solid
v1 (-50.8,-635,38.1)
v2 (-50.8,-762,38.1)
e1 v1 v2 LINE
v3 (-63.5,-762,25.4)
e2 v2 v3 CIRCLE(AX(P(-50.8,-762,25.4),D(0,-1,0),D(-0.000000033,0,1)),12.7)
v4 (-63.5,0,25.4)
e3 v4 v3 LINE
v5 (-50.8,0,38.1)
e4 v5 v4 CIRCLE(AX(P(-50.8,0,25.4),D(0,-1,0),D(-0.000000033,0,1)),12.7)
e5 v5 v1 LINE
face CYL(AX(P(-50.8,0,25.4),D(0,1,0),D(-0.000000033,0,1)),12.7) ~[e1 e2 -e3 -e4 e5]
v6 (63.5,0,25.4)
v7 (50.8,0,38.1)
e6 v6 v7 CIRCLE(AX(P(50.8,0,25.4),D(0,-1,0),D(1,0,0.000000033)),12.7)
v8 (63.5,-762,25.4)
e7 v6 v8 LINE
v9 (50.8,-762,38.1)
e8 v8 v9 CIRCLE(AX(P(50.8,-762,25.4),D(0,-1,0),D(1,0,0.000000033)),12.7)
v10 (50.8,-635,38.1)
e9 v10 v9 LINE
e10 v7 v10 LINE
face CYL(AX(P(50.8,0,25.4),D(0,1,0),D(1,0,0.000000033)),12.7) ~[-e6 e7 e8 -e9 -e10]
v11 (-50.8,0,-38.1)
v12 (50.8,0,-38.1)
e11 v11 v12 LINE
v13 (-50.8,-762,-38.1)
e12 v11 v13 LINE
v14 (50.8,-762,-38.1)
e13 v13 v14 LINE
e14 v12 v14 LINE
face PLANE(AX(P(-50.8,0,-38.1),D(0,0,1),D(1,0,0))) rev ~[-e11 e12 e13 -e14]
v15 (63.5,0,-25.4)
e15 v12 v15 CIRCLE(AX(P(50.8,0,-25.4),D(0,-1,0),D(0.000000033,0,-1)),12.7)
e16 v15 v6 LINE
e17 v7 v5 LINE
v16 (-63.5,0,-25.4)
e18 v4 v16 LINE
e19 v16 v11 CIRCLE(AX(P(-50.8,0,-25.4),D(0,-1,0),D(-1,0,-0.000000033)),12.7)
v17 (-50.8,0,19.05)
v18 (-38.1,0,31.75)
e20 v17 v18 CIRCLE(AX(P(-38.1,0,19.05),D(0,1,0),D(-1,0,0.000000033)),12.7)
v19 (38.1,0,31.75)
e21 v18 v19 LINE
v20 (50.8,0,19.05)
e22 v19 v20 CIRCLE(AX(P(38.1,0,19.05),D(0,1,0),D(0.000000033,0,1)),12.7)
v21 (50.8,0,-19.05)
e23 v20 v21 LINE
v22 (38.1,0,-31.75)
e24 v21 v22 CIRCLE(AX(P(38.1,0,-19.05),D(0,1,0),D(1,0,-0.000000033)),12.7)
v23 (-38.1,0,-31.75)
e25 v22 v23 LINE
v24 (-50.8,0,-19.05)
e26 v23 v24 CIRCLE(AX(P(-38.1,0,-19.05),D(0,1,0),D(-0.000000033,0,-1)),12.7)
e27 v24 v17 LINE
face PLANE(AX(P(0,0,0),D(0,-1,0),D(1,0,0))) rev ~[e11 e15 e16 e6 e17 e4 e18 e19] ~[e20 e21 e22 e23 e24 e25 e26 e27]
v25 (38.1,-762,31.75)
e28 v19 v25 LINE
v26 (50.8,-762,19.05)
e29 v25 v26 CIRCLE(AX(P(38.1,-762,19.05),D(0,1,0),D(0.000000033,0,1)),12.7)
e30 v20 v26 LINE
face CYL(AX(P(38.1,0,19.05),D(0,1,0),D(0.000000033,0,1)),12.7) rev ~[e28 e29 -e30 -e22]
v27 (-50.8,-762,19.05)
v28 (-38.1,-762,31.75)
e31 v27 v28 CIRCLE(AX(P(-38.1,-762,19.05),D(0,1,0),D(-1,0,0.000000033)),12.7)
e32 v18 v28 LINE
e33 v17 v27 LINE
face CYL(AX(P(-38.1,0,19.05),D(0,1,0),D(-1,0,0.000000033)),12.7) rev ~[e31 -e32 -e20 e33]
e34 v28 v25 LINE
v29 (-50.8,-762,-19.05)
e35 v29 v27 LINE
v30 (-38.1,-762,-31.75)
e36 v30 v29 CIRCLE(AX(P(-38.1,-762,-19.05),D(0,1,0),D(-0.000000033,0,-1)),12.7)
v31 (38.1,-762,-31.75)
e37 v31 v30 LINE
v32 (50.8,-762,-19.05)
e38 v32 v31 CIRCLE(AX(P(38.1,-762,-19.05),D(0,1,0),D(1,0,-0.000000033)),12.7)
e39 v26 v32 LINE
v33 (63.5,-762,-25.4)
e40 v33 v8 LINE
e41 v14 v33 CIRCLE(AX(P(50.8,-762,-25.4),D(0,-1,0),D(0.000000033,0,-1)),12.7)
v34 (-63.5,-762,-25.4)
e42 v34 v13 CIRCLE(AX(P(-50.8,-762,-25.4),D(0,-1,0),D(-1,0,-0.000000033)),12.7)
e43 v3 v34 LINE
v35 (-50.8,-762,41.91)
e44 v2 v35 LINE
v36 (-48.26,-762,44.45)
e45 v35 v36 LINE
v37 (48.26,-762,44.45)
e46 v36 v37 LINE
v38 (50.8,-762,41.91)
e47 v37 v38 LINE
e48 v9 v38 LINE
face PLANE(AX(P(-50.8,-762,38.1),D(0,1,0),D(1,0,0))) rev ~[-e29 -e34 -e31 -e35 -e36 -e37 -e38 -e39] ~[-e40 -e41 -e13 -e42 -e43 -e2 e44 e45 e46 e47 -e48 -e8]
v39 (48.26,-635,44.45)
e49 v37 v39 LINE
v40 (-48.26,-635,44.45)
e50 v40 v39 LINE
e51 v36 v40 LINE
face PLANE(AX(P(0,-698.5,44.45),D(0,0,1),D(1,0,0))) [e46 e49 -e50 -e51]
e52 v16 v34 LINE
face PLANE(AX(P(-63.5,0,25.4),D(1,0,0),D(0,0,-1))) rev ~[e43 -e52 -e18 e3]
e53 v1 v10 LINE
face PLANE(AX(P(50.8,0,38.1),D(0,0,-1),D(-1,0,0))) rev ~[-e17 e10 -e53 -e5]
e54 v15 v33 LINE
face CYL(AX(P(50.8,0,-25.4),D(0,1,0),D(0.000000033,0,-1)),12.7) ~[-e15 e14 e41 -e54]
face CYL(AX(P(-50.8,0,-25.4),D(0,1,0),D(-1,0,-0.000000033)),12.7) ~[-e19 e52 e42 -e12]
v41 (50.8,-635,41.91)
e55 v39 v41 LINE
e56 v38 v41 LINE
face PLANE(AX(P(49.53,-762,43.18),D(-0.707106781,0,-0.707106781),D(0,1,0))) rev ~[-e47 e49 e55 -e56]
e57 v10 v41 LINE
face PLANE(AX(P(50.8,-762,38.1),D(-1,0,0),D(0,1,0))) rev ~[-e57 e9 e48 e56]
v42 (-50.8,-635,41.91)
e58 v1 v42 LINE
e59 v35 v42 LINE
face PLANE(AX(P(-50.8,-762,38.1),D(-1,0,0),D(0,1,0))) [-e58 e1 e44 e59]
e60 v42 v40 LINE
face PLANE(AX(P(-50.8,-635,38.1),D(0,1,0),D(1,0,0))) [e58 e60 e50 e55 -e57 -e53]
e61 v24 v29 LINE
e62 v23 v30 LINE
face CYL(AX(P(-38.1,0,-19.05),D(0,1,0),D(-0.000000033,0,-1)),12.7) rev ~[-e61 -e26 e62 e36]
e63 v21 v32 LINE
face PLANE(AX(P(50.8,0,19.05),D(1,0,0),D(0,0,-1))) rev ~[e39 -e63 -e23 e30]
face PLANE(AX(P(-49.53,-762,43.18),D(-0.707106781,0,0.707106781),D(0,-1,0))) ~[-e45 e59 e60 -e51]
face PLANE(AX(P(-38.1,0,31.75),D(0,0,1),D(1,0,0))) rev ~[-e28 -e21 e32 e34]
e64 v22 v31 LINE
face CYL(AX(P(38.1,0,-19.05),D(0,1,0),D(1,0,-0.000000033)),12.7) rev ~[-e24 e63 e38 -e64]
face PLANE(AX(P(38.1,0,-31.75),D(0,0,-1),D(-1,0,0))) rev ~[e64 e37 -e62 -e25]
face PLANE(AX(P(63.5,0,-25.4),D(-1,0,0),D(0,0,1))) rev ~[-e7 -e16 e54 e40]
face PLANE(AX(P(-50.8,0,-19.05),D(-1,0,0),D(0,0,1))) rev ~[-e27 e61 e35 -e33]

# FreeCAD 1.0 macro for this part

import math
import FreeCAD as App
import Part
import Sketcher

V = App.Vector
Q = App.Units.Quantity


def edges_at(feature, points):
    """Names of the edges that pass closest to the given points."""
    edges = feature.Shape.Edges
    near = lambda p: min(range(len(edges)), key=lambda i: edges[i].distToShape(Part.Vertex(*p))[0])
    return sorted({f"Edge{near(p) + 1}" for p in points})

doc = App.newDocument("Part")
params = doc.addObject("Spreadsheet::Sheet", "Params")
for row, (alias, value) in enumerate([
    ("sketch1_radius", "0.5 in"),
    ("sketch1_width", "4 in"),
    ("sketch1_height", "2 in"),
    ("sketch1_height2", "1.5 in"),
    ("pad1_length", "30 in"),
    ("sketch2_width", "4 in"),
    ("sketch2_height", "5 in"),
    ("pad2_length", "0.25 in"),
    ("chamfer_size", "0.1 in"),
], start=1):
    params.set(f"A{row}", alias)
    params.set(f"B{row}", "=" + value)
    params.setAlias(f"B{row}", alias)

body = doc.addObject("PartDesign::Body", "Body")

# Sketch on XZ plane
sketch1 = doc.addObject("Sketcher::SketchObject", "Sketch")
body.addObject(sketch1)
sketch1.AttachmentSupport = (doc.XZ_Plane, [""])
sketch1.MapMode = "FlatFace"
sketch1.addGeometry([
    Part.ArcOfCircle(Part.Circle(V(50.8, 25.4, 0), V(0, 0, 1), 12.7), math.radians(0.000002), math.radians(89.999998)),  # 0
    Part.LineSegment(V(50.8, 38.1, 0), V(-50.8, 38.1, 0)),  # 1
    Part.ArcOfCircle(Part.Circle(V(-50.8, 25.4, 0), V(0, 0, 1), 12.7), math.radians(90.000002), math.radians(179.999998)),  # 2
    Part.LineSegment(V(-63.5, 25.4, 0), V(-63.5, -25.4, 0)),  # 3
    Part.ArcOfCircle(Part.Circle(V(-50.8, -25.4, 0), V(0, 0, 1), 12.7), math.radians(-179.999998), math.radians(-90.000002)),  # 4
    Part.LineSegment(V(-50.8, -38.1, 0), V(50.8, -38.1, 0)),  # 5
    Part.ArcOfCircle(Part.Circle(V(50.8, -25.4, 0), V(0, 0, 1), 12.7), math.radians(-89.999998), math.radians(-0.000002)),  # 6
    Part.LineSegment(V(63.5, -25.4, 0), V(63.5, 25.4, 0)),  # 7
    Part.ArcOfCircle(Part.Circle(V(-38.1, 19.05, 0), V(0, 0, 1), 12.7), math.radians(90.000002), math.radians(179.999998)),  # 8
    Part.LineSegment(V(-38.1, 31.75, 0), V(38.1, 31.75, 0)),  # 9
    Part.ArcOfCircle(Part.Circle(V(38.1, 19.05, 0), V(0, 0, 1), 12.7), math.radians(0.000002), math.radians(89.999998)),  # 10
    Part.LineSegment(V(50.8, 19.05, 0), V(50.8, -19.05, 0)),  # 11
    Part.ArcOfCircle(Part.Circle(V(38.1, -19.05, 0), V(0, 0, 1), 12.7), math.radians(-89.999998), math.radians(-0.000002)),  # 12
    Part.LineSegment(V(38.1, -31.75, 0), V(-38.1, -31.75, 0)),  # 13
    Part.ArcOfCircle(Part.Circle(V(-38.1, -19.05, 0), V(0, 0, 1), 12.7), math.radians(-179.999998), math.radians(-90.000002)),  # 14
    Part.LineSegment(V(-50.8, -19.05, 0), V(-50.8, 19.05, 0)),  # 15
], False)
sketch1.addConstraint([
    Sketcher.Constraint("Tangent", 0, 2, 1, 1),
    Sketcher.Constraint("Tangent", 1, 2, 2, 1),
    Sketcher.Constraint("Tangent", 2, 2, 3, 1),
    Sketcher.Constraint("Tangent", 3, 2, 4, 1),
    Sketcher.Constraint("Tangent", 4, 2, 5, 1),
    Sketcher.Constraint("Tangent", 5, 2, 6, 1),
    Sketcher.Constraint("Tangent", 6, 2, 7, 1),
    Sketcher.Constraint("Tangent", 7, 2, 0, 1),
    Sketcher.Constraint("Tangent", 8, 1, 9, 1),
    Sketcher.Constraint("Tangent", 9, 2, 10, 2),
    Sketcher.Constraint("Tangent", 10, 1, 11, 1),
    Sketcher.Constraint("Tangent", 11, 2, 12, 2),
    Sketcher.Constraint("Tangent", 12, 1, 13, 1),
    Sketcher.Constraint("Tangent", 13, 2, 14, 2),
    Sketcher.Constraint("Tangent", 14, 1, 15, 1),
    Sketcher.Constraint("Tangent", 15, 2, 8, 2),
    Sketcher.Constraint("Horizontal", 1),
    Sketcher.Constraint("Vertical", 3),
    Sketcher.Constraint("Horizontal", 5),
    Sketcher.Constraint("Vertical", 7),
    Sketcher.Constraint("Horizontal", 9),
    Sketcher.Constraint("Vertical", 11),
    Sketcher.Constraint("Horizontal", 13),
    Sketcher.Constraint("Vertical", 15),
    Sketcher.Constraint("Equal", 0, 2),
    Sketcher.Constraint("Equal", 2, 4),
    Sketcher.Constraint("Equal", 4, 6),
    Sketcher.Constraint("Equal", 6, 8),
    Sketcher.Constraint("Equal", 8, 10),
    Sketcher.Constraint("Equal", 10, 12),
    Sketcher.Constraint("Equal", 12, 14),
    Sketcher.Constraint("Symmetric", 0, 3, 4, 3, -1, 1),
    Sketcher.Constraint("Symmetric", 8, 3, 12, 3, -1, 1),
    Sketcher.Constraint("Vertical", 5, 2, 10, 1),
    Sketcher.Constraint("Radius", 0, Q("0.5 in")),
    Sketcher.Constraint("DistanceX", 1, 2, 1, 1, Q("4 in")),
    Sketcher.Constraint("DistanceY", 3, 2, 3, 1, Q("2 in")),
    Sketcher.Constraint("DistanceY", 11, 2, 11, 1, Q("1.5 in")),
])
sketch1.setExpression("Constraints[34]", "Params.sketch1_radius")
sketch1.setExpression("Constraints[35]", "Params.sketch1_width")
sketch1.setExpression("Constraints[36]", "Params.sketch1_height")
sketch1.setExpression("Constraints[37]", "Params.sketch1_height2")
pad1 = doc.addObject("PartDesign::Pad", "Pad")
body.addObject(pad1)
pad1.Profile = sketch1
pad1.setExpression("Length", "Params.pad1_length")

# Sketch on XY plane
sketch2 = doc.addObject("Sketcher::SketchObject", "Sketch001")
body.addObject(sketch2)
sketch2.AttachmentSupport = (doc.XY_Plane, [""])
sketch2.MapMode = "FlatFace"
sketch2.AttachmentOffset = App.Placement(V(0, 0, 1.5 * 25.4), App.Rotation())
sketch2.addGeometry([
    Part.LineSegment(V(-50.8, -635, 0), V(-50.8, -762, 0)),
    Part.LineSegment(V(-50.8, -762, 0), V(50.8, -762, 0)),
    Part.LineSegment(V(50.8, -762, 0), V(50.8, -635, 0)),
    Part.LineSegment(V(50.8, -635, 0), V(-50.8, -635, 0)),
], False)
sketch2.addConstraint([
    Sketcher.Constraint("Coincident", 0, 2, 1, 1),
    Sketcher.Constraint("Coincident", 1, 2, 2, 1),
    Sketcher.Constraint("Coincident", 2, 2, 3, 1),
    Sketcher.Constraint("Coincident", 3, 2, 0, 1),
    Sketcher.Constraint("Vertical", 0),
    Sketcher.Constraint("Horizontal", 1),
    Sketcher.Constraint("Vertical", 2),
    Sketcher.Constraint("Horizontal", 3),
    Sketcher.Constraint("DistanceX", 1, 1, 1, 2, Q("4 in")),
    Sketcher.Constraint("DistanceY", 0, 2, 0, 1, Q("5 in")),
    Sketcher.Constraint("DistanceX", 0, 2, -1, 1, Q("2 in")),
    Sketcher.Constraint("DistanceY", 0, 2, -1, 1, Q("30 in")),
])
sketch2.setExpression("Constraints[8]", "Params.sketch2_width")
sketch2.setExpression("Constraints[9]", "Params.sketch2_height")
pad2 = doc.addObject("PartDesign::Pad", "Pad001")
body.addObject(pad2)
pad2.Profile = sketch2
pad2.setExpression("Length", "Params.pad2_length")
doc.recompute()

chamfer = doc.addObject("PartDesign::Chamfer", "Chamfer")
body.addObject(chamfer)
chamfer.Base = (pad2, edges_at(pad2, [(50.8, -698.5, 44.45), (-50.8, -698.5, 44.45)]))
chamfer.setExpression("Size", "Params.chamfer_size")

doc.recompute()
